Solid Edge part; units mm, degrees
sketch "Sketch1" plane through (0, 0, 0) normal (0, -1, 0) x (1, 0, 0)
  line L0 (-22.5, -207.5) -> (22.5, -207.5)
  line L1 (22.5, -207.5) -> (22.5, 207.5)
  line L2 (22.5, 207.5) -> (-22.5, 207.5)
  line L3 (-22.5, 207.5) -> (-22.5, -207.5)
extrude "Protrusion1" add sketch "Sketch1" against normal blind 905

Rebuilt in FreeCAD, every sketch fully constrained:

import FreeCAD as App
import Part
import Sketcher

V = App.Vector
Q = App.Units.Quantity


def add_polygon(sketch, points):
    """Adds a closed chain of lines whose ends are joined by coincident constraints."""
    first, n = sketch.GeometryCount, len(points)
    for a, b in zip(points, points[1:] + points[:1]):
        sketch.addGeometry(Part.LineSegment(App.Vector(*a, 0), App.Vector(*b, 0)), False)
    for i in range(n):
        sketch.addConstraint(Sketcher.Constraint("Coincident", first + i, 2, first + (i + 1) % n, 1))

doc = App.newDocument("Part")
body = doc.addObject("PartDesign::Body", "Body")

# Sketch on XZ plane
sketch1 = body.newObject("Sketcher::SketchObject", "Sketch")
sketch1.AttachmentSupport = (doc.getObject("XZ_Plane"), [""])
sketch1.MapMode = "FlatFace"
add_polygon(sketch1, [(-22, 208), (-22, -208), (22, -208), (22, 208)])  # lines 0-3
sketch1.addConstraint(Sketcher.Constraint("Vertical", 0))
sketch1.addConstraint(Sketcher.Constraint("Horizontal", 1))
sketch1.addConstraint(Sketcher.Constraint("Vertical", 2))
sketch1.addConstraint(Sketcher.Constraint("Horizontal", 3))
sketch1.addConstraint(Sketcher.Constraint("Symmetric", 0, 2, 2, 2, -1, 1))
sketch1.addConstraint(Sketcher.Constraint("DistanceX", 1, 1, 1, 2, Q("45 mm")))
sketch1.addConstraint(Sketcher.Constraint("DistanceY", 0, 2, 0, 1, Q("415 mm")))
pad1 = body.newObject("PartDesign::Pad", "Pad")
pad1.Profile = sketch1
pad1.Length = 905
pad1.Reversed = True

doc.recompute()
